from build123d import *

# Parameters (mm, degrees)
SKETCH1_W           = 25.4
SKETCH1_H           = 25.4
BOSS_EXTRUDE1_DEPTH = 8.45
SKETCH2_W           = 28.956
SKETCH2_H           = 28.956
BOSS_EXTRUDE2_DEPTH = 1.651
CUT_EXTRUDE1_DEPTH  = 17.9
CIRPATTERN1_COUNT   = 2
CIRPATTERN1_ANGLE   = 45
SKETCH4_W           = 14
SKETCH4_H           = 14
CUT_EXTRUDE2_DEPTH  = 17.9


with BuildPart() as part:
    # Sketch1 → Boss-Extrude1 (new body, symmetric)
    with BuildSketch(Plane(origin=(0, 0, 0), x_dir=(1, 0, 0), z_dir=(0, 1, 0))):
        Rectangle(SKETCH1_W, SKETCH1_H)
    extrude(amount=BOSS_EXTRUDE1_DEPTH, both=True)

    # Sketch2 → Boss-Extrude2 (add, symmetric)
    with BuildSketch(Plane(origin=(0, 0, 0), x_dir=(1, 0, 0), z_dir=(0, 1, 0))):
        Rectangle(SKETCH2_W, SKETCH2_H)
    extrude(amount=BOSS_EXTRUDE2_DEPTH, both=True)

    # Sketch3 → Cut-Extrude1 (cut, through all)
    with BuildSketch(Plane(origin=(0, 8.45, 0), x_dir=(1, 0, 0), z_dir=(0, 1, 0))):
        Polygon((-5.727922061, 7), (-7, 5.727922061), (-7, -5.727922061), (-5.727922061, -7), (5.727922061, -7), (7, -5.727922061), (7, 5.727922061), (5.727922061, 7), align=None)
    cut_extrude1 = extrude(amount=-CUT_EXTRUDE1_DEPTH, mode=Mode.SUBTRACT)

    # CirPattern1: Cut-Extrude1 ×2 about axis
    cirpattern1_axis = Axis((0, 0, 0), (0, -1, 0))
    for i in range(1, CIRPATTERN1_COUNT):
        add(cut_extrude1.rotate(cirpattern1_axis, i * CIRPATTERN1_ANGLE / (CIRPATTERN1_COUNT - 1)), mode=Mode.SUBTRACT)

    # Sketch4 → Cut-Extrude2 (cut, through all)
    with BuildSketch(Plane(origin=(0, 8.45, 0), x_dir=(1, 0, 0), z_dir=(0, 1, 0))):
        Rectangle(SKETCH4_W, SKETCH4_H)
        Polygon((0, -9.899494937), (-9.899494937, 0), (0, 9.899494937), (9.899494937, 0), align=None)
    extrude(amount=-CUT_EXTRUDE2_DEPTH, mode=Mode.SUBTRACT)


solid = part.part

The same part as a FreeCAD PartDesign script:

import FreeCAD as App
import Part
import Sketcher

V = App.Vector
Q = App.Units.Quantity

doc = App.newDocument("Part")
body = doc.addObject("PartDesign::Body", "Body")

sketch1 = doc.addObject("Sketcher::SketchObject", "Sketch")
body.addObject(sketch1)
sketch1.AttachmentSupport = (doc.XZ_Plane, [""])
sketch1.MapMode = "FlatFace"
sketch1.addGeometry([
    Part.LineSegment(V(-13, -13, 0), V(-13, 13, 0)),
    Part.LineSegment(V(-13, 13, 0), V(13, 13, 0)),
    Part.LineSegment(V(13, 13, 0), V(13, -13, 0)),
    Part.LineSegment(V(13, -13, 0), V(-13, -13, 0)),
], False)
sketch1.addConstraint([
    Sketcher.Constraint("Coincident", 0, 2, 1, 1),
    Sketcher.Constraint("Coincident", 1, 2, 2, 1),
    Sketcher.Constraint("Coincident", 2, 2, 3, 1),
    Sketcher.Constraint("Coincident", 3, 2, 0, 1),
    Sketcher.Constraint("Vertical", 0),
    Sketcher.Constraint("Horizontal", 1),
    Sketcher.Constraint("Vertical", 2),
    Sketcher.Constraint("Horizontal", 3),
    Sketcher.Constraint("Symmetric", 0, 2, 2, 2, -1, 1),
    Sketcher.Constraint("Equal", 3, 0),
    Sketcher.Constraint("DistanceX", 1, 1, 1, 2, Q("1 in")),
])
pad1 = doc.addObject("PartDesign::Pad", "Pad")
body.addObject(pad1)
pad1.Profile = sketch1
pad1.Length = 16.9
pad1.Midplane = True

sketch2 = doc.addObject("Sketcher::SketchObject", "Sketch001")
body.addObject(sketch2)
sketch2.AttachmentSupport = (doc.XZ_Plane, [""])
sketch2.MapMode = "FlatFace"
sketch2.addGeometry([
    Part.LineSegment(V(-14, -14, 0), V(-14, 14, 0)),
    Part.LineSegment(V(-14, 14, 0), V(14, 14, 0)),
    Part.LineSegment(V(14, 14, 0), V(14, -14, 0)),
    Part.LineSegment(V(14, -14, 0), V(-14, -14, 0)),
], False)
sketch2.addConstraint([
    Sketcher.Constraint("Coincident", 0, 2, 1, 1),
    Sketcher.Constraint("Coincident", 1, 2, 2, 1),
    Sketcher.Constraint("Coincident", 2, 2, 3, 1),
    Sketcher.Constraint("Coincident", 3, 2, 0, 1),
    Sketcher.Constraint("Vertical", 0),
    Sketcher.Constraint("Horizontal", 1),
    Sketcher.Constraint("Vertical", 2),
    Sketcher.Constraint("Horizontal", 3),
    Sketcher.Constraint("Symmetric", 0, 2, 2, 2, -1, 1),
    Sketcher.Constraint("Equal", 3, 0),
    Sketcher.Constraint("DistanceX", 1, 1, 1, 2, Q("1.14 in")),
])
pad2 = doc.addObject("PartDesign::Pad", "Pad001")
body.addObject(pad2)
pad2.Profile = sketch2
pad2.Length = Q("0.13 in")
pad2.Midplane = True

sketch3 = doc.addObject("Sketcher::SketchObject", "Sketch002")
body.addObject(sketch3)
sketch3.AttachmentSupport = (doc.XZ_Plane, [""])
sketch3.MapMode = "FlatFace"
sketch3.AttachmentOffset = App.Placement(V(0, 0, -8.45), App.Rotation())
sketch3.addGeometry([
    Part.LineSegment(V(-5.7, -7, 0), V(-7, -5.7, 0)),
    Part.LineSegment(V(-7, -5.7, 0), V(-7, 5.7, 0)),
    Part.LineSegment(V(-7, 5.7, 0), V(-5.7, 7, 0)),
    Part.LineSegment(V(-5.7, 7, 0), V(5.7, 7, 0)),
    Part.LineSegment(V(5.7, 7, 0), V(7, 5.7, 0)),
    Part.LineSegment(V(7, 5.7, 0), V(7, -5.7, 0)),
    Part.LineSegment(V(7, -5.7, 0), V(5.7, -7, 0)),
    Part.LineSegment(V(5.7, -7, 0), V(-5.7, -7, 0)),
], False)
sketch3.addConstraint([
    Sketcher.Constraint("Coincident", 0, 2, 1, 1),
    Sketcher.Constraint("Coincident", 1, 2, 2, 1),
    Sketcher.Constraint("Coincident", 2, 2, 3, 1),
    Sketcher.Constraint("Coincident", 3, 2, 4, 1),
    Sketcher.Constraint("Coincident", 4, 2, 5, 1),
    Sketcher.Constraint("Coincident", 5, 2, 6, 1),
    Sketcher.Constraint("Coincident", 6, 2, 7, 1),
    Sketcher.Constraint("Coincident", 7, 2, 0, 1),
    Sketcher.Constraint("Vertical", 1),
    Sketcher.Constraint("Horizontal", 3),
    Sketcher.Constraint("Vertical", 5),
    Sketcher.Constraint("Horizontal", 7),
    Sketcher.Constraint("Symmetric", 0, 2, 4, 2, -1, 1),
    Sketcher.Constraint("Symmetric", 2, 2, 6, 2, -1, 1),
    Sketcher.Constraint("Perpendicular", 0, 2),
    Sketcher.Constraint("Perpendicular", 2, 4),
    Sketcher.Constraint("Perpendicular", 4, 6),
    Sketcher.Constraint("Horizontal", 1, 2, 4, 2),
    Sketcher.Constraint("Vertical", 3, 2, 6, 2),
    Sketcher.Constraint("Equal", 7, 1),
    Sketcher.Constraint("DistanceX", 0, 2, -1, 1, 7.0),
    Sketcher.Constraint("Distance", 0, 1.79899),
])
pocket1 = doc.addObject("PartDesign::Pocket", "Pocket")
body.addObject(pocket1)
pocket1.Profile = sketch3
pocket1.Type = "ThroughAll"
pocket1.Reversed = True
doc.recompute()

polarpattern = doc.addObject("PartDesign::PolarPattern", "PolarPattern")
body.addObject(polarpattern)
polarpattern.Originals = [pocket1]
polarpattern.Axis = (doc.Y_Axis, [""])
polarpattern.Angle = 45
polarpattern.Occurrences = 2
polarpattern.Reversed = True
body.Tip = polarpattern

sketch4 = doc.addObject("Sketcher::SketchObject", "Sketch003")
body.addObject(sketch4)
sketch4.AttachmentSupport = (doc.XZ_Plane, [""])
sketch4.MapMode = "FlatFace"
sketch4.AttachmentOffset = App.Placement(V(0, 0, -8.45), App.Rotation())
sketch4.addGeometry([
    Part.LineSegment(V(-7, 2.9, 0), V(-7, 7, 0)),
    Part.LineSegment(V(-7, 7, 0), V(-2.9, 7, 0)),
    Part.LineSegment(V(-2.9, 7, 0), V(0, 9.9, 0)),
    Part.LineSegment(V(0, 9.9, 0), V(2.9, 7, 0)),
    Part.LineSegment(V(2.9, 7, 0), V(7, 7, 0)),
    Part.LineSegment(V(7, 7, 0), V(7, 2.9, 0)),
    Part.LineSegment(V(7, 2.9, 0), V(9.9, 0, 0)),
    Part.LineSegment(V(9.9, 0, 0), V(7, -2.9, 0)),
    Part.LineSegment(V(7, -2.9, 0), V(7, -7, 0)),
    Part.LineSegment(V(7, -7, 0), V(2.9, -7, 0)),
    Part.LineSegment(V(2.9, -7, 0), V(0, -9.9, 0)),
    Part.LineSegment(V(0, -9.9, 0), V(-2.9, -7, 0)),
    Part.LineSegment(V(-2.9, -7, 0), V(-7, -7, 0)),
    Part.LineSegment(V(-7, -7, 0), V(-7, -2.9, 0)),
    Part.LineSegment(V(-7, -2.9, 0), V(-9.9, 0, 0)),
    Part.LineSegment(V(-9.9, 0, 0), V(-7, 2.9, 0)),
], False)
sketch4.addConstraint([
    Sketcher.Constraint("Coincident", 0, 2, 1, 1),
    Sketcher.Constraint("Coincident", 1, 2, 2, 1),
    Sketcher.Constraint("Coincident", 2, 2, 3, 1),
    Sketcher.Constraint("Coincident", 3, 2, 4, 1),
    Sketcher.Constraint("Coincident", 4, 2, 5, 1),
    Sketcher.Constraint("Coincident", 5, 2, 6, 1),
    Sketcher.Constraint("Coincident", 6, 2, 7, 1),
    Sketcher.Constraint("Coincident", 7, 2, 8, 1),
    Sketcher.Constraint("Coincident", 8, 2, 9, 1),
    Sketcher.Constraint("Coincident", 9, 2, 10, 1),
    Sketcher.Constraint("Coincident", 10, 2, 11, 1),
    Sketcher.Constraint("Coincident", 11, 2, 12, 1),
    Sketcher.Constraint("Coincident", 12, 2, 13, 1),
    Sketcher.Constraint("Coincident", 13, 2, 14, 1),
    Sketcher.Constraint("Coincident", 14, 2, 15, 1),
    Sketcher.Constraint("Coincident", 15, 2, 0, 1),
    Sketcher.Constraint("Vertical", 0),
    Sketcher.Constraint("Horizontal", 1),
    Sketcher.Constraint("Horizontal", 4),
    Sketcher.Constraint("Vertical", 5),
    Sketcher.Constraint("Vertical", 8),
    Sketcher.Constraint("Horizontal", 9),
    Sketcher.Constraint("Horizontal", 12),
    Sketcher.Constraint("Vertical", 13),
    Sketcher.Constraint("Symmetric", 0, 2, 8, 2, -1, 1),
    Sketcher.Constraint("Symmetric", 2, 2, 10, 2, -1, 1),
    Sketcher.Constraint("Symmetric", 3, 2, 11, 2, -1, 1),
    Sketcher.Constraint("Symmetric", 5, 2, 13, 2, -1, 1),
    Sketcher.Constraint("Symmetric", 6, 2, 14, 2, -1, 1),
    Sketcher.Constraint("Symmetric", 1, 2, 3, 2, -2),
    Sketcher.Constraint("Symmetric", 7, 2, 13, 2, -2),
    Sketcher.Constraint("PointOnObject", 2, 2, -2),
    Sketcher.Constraint("PointOnObject", 6, 2, -1),
    Sketcher.Constraint("Perpendicular", 2, 3),
    Sketcher.Constraint("Parallel", 3, 6),
    Sketcher.Constraint("Parallel", 7, 10),
    Sketcher.Constraint("Perpendicular", 14, 15),
    Sketcher.Constraint("Equal", 12, 0),
    Sketcher.Constraint("Equal", 3, 6),
    Sketcher.Constraint("DistanceX", 0, 2, -1, 1, 7.0),
    Sketcher.Constraint("DistanceX", 1, 1, 1, 2, 4.100505),
])
pocket2 = doc.addObject("PartDesign::Pocket", "Pocket001")
body.addObject(pocket2)
pocket2.Profile = sketch4
pocket2.Type = "ThroughAll"
pocket2.Reversed = True

doc.recompute()
